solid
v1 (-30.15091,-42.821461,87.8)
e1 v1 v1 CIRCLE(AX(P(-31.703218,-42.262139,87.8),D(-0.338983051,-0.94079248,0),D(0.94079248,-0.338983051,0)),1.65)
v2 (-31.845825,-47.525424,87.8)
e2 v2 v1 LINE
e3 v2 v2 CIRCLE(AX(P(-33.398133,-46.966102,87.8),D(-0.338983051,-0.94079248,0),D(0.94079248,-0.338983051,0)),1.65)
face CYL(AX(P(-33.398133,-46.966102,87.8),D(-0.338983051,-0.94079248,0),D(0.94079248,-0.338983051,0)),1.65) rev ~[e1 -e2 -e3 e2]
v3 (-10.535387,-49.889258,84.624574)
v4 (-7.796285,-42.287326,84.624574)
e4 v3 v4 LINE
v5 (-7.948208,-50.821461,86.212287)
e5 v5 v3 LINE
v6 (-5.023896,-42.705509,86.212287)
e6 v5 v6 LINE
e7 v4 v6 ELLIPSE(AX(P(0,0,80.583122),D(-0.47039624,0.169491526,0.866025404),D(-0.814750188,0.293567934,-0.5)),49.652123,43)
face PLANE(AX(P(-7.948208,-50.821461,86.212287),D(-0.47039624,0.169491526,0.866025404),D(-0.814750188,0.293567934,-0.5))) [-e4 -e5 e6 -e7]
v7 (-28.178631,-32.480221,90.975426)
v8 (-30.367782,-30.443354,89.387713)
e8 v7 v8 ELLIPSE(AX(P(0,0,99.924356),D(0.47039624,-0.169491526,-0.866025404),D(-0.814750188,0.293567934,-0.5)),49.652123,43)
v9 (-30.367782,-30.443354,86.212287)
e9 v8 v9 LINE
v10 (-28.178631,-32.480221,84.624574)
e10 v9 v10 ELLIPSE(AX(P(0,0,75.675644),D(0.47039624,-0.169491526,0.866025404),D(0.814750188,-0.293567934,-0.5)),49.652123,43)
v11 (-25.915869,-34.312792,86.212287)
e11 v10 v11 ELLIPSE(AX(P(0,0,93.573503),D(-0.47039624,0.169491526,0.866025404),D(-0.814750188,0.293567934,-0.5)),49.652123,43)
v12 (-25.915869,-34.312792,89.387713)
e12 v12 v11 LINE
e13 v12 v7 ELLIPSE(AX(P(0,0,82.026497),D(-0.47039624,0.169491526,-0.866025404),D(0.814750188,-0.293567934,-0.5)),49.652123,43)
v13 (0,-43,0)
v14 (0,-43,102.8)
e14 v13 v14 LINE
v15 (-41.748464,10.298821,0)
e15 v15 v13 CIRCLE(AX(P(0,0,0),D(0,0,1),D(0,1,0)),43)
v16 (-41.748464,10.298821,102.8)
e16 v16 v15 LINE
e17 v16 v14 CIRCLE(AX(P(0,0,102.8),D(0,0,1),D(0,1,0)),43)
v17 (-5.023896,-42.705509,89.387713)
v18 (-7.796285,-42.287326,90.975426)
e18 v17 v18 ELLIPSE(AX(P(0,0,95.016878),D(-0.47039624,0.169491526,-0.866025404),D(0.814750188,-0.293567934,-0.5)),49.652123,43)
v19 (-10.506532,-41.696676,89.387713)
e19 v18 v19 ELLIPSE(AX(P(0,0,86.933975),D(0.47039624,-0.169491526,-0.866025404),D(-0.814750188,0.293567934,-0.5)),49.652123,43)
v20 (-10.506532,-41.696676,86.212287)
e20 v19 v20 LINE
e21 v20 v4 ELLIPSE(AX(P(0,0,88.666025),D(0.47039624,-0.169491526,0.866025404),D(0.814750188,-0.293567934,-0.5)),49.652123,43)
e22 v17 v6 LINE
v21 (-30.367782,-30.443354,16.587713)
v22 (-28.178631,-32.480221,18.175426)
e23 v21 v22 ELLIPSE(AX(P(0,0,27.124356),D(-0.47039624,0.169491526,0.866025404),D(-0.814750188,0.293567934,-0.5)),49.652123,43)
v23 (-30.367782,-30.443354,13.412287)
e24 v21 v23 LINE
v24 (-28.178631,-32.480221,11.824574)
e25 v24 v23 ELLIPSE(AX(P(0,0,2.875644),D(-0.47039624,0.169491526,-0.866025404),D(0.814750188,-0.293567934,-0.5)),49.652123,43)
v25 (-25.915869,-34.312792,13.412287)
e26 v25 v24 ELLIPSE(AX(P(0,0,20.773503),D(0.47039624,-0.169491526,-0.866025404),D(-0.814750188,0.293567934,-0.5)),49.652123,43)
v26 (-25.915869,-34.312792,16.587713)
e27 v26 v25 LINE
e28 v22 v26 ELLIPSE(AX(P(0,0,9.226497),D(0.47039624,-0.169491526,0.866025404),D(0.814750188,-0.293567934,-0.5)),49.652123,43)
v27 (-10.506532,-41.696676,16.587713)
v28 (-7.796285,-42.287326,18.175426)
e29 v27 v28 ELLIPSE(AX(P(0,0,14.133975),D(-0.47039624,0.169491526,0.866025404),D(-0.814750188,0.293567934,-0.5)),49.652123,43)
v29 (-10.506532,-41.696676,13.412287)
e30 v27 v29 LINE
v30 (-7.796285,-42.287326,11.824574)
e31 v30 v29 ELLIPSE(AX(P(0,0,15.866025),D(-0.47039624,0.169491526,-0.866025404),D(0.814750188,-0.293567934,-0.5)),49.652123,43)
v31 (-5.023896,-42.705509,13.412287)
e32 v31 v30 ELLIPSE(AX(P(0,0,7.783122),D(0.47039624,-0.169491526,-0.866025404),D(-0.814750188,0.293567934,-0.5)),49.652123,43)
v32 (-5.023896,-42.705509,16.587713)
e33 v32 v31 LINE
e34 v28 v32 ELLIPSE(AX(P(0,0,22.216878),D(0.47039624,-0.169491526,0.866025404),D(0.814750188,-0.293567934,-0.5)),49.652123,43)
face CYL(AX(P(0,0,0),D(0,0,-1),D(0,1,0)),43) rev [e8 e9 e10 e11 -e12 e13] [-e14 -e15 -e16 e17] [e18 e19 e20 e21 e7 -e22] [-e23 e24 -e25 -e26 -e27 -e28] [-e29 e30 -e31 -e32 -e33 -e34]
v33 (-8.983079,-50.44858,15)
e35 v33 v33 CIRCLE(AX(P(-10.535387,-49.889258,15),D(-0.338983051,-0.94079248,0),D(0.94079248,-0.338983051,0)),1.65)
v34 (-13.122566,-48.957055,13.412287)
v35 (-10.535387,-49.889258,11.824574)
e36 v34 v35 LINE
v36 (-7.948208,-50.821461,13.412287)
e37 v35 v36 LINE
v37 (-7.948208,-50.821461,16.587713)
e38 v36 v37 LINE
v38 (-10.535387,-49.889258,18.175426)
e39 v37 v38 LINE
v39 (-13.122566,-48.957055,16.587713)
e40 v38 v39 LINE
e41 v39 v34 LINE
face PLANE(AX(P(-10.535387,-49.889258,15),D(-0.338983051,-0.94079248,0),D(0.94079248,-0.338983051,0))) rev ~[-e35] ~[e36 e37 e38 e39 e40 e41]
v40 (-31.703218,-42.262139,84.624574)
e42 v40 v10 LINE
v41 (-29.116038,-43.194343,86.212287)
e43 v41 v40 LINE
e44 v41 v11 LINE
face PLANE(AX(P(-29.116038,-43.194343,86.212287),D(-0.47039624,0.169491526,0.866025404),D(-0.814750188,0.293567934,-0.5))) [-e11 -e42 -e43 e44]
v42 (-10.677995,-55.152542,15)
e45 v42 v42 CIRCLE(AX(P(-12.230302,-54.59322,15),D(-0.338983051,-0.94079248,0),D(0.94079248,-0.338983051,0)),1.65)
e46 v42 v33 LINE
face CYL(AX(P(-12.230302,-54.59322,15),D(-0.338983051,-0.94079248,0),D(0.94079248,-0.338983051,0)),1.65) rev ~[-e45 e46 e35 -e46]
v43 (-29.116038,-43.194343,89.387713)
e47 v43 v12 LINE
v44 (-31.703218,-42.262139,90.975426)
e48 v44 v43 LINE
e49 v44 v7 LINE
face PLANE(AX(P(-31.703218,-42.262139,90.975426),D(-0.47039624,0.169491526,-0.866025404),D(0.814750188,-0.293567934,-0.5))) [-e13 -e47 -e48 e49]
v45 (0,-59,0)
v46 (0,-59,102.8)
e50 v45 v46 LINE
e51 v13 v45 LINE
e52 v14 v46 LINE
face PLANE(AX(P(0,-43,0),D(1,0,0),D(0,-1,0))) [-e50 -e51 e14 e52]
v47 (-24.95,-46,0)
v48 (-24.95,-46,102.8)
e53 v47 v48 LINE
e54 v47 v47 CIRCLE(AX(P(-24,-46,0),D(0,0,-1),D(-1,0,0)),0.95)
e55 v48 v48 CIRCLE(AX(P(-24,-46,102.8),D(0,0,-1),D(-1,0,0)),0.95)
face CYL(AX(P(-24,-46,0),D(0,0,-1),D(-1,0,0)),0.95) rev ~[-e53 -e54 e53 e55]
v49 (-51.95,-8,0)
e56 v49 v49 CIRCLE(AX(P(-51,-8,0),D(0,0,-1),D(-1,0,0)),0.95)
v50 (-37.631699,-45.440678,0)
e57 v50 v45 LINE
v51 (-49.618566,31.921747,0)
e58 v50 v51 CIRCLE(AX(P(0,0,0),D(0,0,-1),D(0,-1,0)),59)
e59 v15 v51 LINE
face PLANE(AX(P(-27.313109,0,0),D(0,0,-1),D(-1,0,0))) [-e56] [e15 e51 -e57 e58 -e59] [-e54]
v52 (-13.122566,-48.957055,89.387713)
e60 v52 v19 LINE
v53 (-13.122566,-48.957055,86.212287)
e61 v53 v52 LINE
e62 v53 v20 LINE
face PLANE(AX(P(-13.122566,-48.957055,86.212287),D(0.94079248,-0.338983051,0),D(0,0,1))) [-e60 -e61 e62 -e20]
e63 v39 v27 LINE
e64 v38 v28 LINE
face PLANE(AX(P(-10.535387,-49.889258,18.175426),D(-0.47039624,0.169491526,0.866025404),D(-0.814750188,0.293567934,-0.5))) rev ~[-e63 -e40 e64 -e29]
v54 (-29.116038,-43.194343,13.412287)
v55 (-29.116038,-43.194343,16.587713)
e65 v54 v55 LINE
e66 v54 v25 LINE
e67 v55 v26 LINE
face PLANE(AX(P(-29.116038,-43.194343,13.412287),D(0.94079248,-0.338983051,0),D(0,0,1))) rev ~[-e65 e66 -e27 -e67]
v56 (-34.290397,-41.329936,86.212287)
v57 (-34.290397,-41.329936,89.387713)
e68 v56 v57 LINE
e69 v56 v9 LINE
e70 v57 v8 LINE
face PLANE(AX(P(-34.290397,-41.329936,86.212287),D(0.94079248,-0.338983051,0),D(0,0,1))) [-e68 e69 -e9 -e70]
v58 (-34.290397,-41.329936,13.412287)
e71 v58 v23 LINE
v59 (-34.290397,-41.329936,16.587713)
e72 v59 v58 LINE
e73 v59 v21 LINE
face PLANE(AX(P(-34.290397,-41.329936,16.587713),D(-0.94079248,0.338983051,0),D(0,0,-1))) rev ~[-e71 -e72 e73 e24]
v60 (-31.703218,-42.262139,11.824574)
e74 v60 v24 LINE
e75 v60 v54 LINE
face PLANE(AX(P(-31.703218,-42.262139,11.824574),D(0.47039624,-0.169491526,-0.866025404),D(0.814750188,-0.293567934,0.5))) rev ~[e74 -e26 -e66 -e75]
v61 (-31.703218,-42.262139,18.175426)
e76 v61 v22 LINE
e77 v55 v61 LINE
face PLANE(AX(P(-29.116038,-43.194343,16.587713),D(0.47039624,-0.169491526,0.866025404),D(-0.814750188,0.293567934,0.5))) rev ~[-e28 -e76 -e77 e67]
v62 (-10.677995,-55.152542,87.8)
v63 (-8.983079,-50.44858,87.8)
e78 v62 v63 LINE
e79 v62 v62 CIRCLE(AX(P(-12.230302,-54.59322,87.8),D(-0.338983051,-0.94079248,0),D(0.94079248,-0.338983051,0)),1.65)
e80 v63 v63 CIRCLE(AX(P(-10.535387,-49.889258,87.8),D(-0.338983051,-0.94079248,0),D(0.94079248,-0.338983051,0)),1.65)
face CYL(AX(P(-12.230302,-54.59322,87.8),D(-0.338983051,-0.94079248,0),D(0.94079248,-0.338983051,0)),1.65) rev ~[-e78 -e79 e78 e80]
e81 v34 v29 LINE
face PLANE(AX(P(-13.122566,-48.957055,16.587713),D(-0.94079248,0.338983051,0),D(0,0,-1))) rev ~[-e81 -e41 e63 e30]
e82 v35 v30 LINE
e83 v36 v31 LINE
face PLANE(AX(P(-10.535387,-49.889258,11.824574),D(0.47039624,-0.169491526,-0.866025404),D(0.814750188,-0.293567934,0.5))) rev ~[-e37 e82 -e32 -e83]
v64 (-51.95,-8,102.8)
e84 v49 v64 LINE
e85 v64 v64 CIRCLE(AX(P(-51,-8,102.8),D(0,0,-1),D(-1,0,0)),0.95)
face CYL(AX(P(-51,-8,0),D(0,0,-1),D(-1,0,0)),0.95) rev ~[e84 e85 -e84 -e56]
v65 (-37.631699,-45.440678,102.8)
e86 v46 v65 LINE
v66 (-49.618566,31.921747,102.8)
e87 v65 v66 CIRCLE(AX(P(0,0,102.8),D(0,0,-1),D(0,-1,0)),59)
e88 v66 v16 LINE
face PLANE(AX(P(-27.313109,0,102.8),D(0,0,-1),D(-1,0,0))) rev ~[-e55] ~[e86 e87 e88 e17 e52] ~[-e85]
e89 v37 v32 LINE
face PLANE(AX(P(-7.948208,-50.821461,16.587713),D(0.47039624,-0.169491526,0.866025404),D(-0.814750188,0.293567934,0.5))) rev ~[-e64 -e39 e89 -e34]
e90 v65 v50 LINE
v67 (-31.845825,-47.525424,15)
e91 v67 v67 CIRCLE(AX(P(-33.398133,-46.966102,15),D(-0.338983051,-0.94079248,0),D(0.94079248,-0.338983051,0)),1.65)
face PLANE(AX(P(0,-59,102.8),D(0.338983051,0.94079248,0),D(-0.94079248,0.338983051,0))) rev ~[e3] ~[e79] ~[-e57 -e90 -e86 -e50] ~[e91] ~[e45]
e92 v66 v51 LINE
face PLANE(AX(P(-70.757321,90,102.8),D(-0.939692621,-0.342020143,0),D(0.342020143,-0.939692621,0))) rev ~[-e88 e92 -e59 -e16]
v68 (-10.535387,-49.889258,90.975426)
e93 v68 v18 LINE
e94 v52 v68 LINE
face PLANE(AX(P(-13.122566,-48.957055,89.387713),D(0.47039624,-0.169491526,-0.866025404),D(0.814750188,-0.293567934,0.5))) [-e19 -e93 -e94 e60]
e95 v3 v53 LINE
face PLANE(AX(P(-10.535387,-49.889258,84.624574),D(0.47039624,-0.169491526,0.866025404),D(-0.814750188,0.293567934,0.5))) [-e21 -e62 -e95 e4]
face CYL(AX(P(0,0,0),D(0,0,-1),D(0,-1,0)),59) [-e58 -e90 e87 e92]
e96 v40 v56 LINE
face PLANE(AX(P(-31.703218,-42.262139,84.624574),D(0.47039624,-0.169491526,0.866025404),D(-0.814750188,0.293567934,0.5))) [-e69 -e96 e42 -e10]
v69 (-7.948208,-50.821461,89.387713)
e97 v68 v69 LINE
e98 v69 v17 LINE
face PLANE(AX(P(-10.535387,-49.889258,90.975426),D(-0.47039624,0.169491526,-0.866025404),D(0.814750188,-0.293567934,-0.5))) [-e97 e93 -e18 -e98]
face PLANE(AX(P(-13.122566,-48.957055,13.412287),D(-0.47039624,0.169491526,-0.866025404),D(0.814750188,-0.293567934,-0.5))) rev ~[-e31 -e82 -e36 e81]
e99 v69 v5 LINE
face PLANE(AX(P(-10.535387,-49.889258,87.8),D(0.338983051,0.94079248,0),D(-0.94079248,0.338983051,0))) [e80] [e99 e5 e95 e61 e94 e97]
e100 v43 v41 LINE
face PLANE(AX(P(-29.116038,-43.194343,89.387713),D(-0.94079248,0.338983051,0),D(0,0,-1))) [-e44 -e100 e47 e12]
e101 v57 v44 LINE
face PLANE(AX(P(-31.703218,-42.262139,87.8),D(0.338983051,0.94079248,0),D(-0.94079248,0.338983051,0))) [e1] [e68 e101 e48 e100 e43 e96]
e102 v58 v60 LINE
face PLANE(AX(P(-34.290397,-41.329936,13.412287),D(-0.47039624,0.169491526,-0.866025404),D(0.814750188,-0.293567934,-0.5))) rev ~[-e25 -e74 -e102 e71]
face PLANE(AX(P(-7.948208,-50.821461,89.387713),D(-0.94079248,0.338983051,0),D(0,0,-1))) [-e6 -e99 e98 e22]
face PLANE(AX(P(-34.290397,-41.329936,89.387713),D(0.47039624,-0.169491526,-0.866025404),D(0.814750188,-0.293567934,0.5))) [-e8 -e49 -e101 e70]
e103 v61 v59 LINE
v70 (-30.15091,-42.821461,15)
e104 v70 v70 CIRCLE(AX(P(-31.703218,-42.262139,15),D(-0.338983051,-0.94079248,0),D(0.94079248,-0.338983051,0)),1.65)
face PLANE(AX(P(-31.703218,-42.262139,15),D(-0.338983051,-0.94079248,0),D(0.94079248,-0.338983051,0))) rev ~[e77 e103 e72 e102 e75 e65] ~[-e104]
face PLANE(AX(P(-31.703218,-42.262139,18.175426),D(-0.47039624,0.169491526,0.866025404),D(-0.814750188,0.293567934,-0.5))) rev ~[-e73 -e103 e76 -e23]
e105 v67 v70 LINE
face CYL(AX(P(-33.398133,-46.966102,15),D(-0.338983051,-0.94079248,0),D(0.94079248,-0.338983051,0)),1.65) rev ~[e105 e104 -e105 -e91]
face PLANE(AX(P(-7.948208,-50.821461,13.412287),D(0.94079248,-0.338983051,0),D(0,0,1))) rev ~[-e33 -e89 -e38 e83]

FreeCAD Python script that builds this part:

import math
import FreeCAD as App
import Part
import Sketcher
Q = App.Units.Quantity


def add_polygon(sketch, points):
    """Adds a closed chain of lines whose ends are joined by coincident constraints."""
    first, n = sketch.GeometryCount, len(points)
    for a, b in zip(points, points[1:] + points[:1]):
        sketch.addGeometry(Part.LineSegment(App.Vector(*a, 0), App.Vector(*b, 0)), False)
    for i in range(n):
        sketch.addConstraint(Sketcher.Constraint("Coincident", first + i, 2, first + (i + 1) % n, 1))

doc = App.newDocument("Part")
body = doc.addObject("PartDesign::Body", "Body")

sketch1 = body.newObject("Sketcher::SketchObject", "Sketch")
sketch1.AttachmentSupport = (doc.getObject("XY_Plane"), [""])
sketch1.MapMode = "FlatFace"
sketch1.addGeometry([
    Part.LineSegment(App.Vector(0, 43, 0), App.Vector(0, 59, 0)),
    Part.ArcOfCircle(Part.Circle(App.Vector(0, 0, 0), App.Vector(0, 0, 1), 59), math.radians(90), math.radians(270)),
    Part.LineSegment(App.Vector(0, -59, 0), App.Vector(0, -43, 0)),
    Part.ArcOfCircle(Part.Circle(App.Vector(0, 0, 0), App.Vector(0, 0, 1), 43), math.radians(90), math.radians(270)),
], False)
sketch1.addConstraint([
    Sketcher.Constraint("Coincident", 0, 2, 1, 1),
    Sketcher.Constraint("Coincident", 1, 2, 2, 1),
    Sketcher.Constraint("Coincident", 2, 2, 3, 2),
    Sketcher.Constraint("Coincident", 3, 1, 0, 1),
    Sketcher.Constraint("Vertical", 0),
    Sketcher.Constraint("Vertical", 2),
    Sketcher.Constraint("Coincident", 1, 3, -1, 1),
    Sketcher.Constraint("Coincident", 3, 3, -1, 1),
    Sketcher.Constraint("PointOnObject", 0, 2, -2),
    Sketcher.Constraint("PointOnObject", 1, 2, -2),
    Sketcher.Constraint("Radius", 1, 59.0),
    Sketcher.Constraint("Radius", 3, 43.0),
])
pad1 = body.newObject("PartDesign::Pad", "Pad")
pad1.Profile = sketch1
pad1.Length = 102.8

sketch2 = body.newObject("Sketcher::SketchObject", "Sketch001")
sketch2.AttachmentSupport = (doc.getObject("XY_Plane"), [""])
sketch2.MapMode = "FlatFace"
sketch2.AttachmentOffset = App.Placement(App.Vector(0, 0, 102.8), App.Rotation())
add_polygon(sketch2, [(0, 0), (0, 90), (-71, 90), (-38, 0)])
sketch2.addConstraint([
    Sketcher.Constraint("Vertical", 0),
    Sketcher.Constraint("Horizontal", 1),
    Sketcher.Constraint("Horizontal", 3),
    Sketcher.Constraint("Coincident", 3, 2, -1, 1),
    Sketcher.Constraint("DistanceX", 3, 1, 3, 2, 38.0),
    Sketcher.Constraint("DistanceY", 0, 1, 0, 2, 90.0),
    Sketcher.Constraint("Angle", 2, Q("-70 deg")),
])
pocket1 = body.newObject("PartDesign::Pocket", "Pocket")
pocket1.Profile = sketch2
pocket1.Type = "ThroughAll"

sketch3 = body.newObject("Sketcher::SketchObject", "Sketch002")
sketch3.AttachmentSupport = (doc.getObject("XY_Plane"), [""])
sketch3.MapMode = "FlatFace"
sketch3.AttachmentOffset = App.Placement(App.Vector(0, 0, 102.8), App.Rotation())
add_polygon(sketch3, [(0, -59), (-38, -45), (-43, -59)])
sketch3.addConstraint([
    Sketcher.Constraint("Horizontal", 2),
    Sketcher.Constraint("PointOnObject", 2, 2, -2),
    Sketcher.Constraint("Perpendicular", 0, 1),
    Sketcher.Constraint("Distance", 0, 40.0),
    Sketcher.Constraint("DistanceY", 1, 2, -1, 1, 59.0),
    Sketcher.Constraint("DistanceX", 0, 2, -1, 1, 37.631699),
])
pocket2 = body.newObject("PartDesign::Pocket", "Pocket001")
pocket2.Profile = sketch3
pocket2.Type = "ThroughAll"

sketch4 = body.newObject("Sketcher::SketchObject", "Sketch003")
sketch4.Placement = App.Placement(App.Vector(-18.81585, -52.220339, 0), App.Rotation(App.Vector(0.94079248, -0.338983051, 0), App.Vector(0, 0, 0.999999999), App.Vector(-0.338983051, -0.94079248, 0), "ZXY"))
sketch4.addGeometry(Part.Circle(App.Vector(7, 15, 0), App.Vector(0, 0, 1), 1.6), False)
sketch4.addConstraint([
    Sketcher.Constraint("Diameter", 0, 3.3),
    Sketcher.Constraint("DistanceX", -1, 1, 0, 3, 7.0),
    Sketcher.Constraint("DistanceY", -1, 1, 0, 3, 15.0),
])
pocket3 = body.newObject("PartDesign::Pocket", "Pocket002")
pocket3.Profile = sketch4
pocket3.Type = "UpToFirst"

sketch5 = body.newObject("Sketcher::SketchObject", "Sketch004")
sketch5.Placement = App.Placement(App.Vector(-18.81585, -52.220339, 0), App.Rotation(App.Vector(0.94079248, -0.338983051, 0), App.Vector(0, 0, 0.999999999), App.Vector(-0.338983051, -0.94079248, 0), "ZXY"))
sketch5.addGeometry(Part.Circle(App.Vector(-15.5, 15, 0), App.Vector(0, 0, 1), 1.6), False)
sketch5.addConstraint([
    Sketcher.Constraint("Diameter", 0, 3.3),
    Sketcher.Constraint("DistanceY", -1, 1, 0, 3, 15.0),
    Sketcher.Constraint("DistanceX", 0, 3, -1, 1, 15.5),
])
pocket4 = body.newObject("PartDesign::Pocket", "Pocket003")
pocket4.Profile = sketch5
pocket4.Type = "UpToFirst"

sketch6 = body.newObject("Sketcher::SketchObject", "Sketch005")
sketch6.Placement = App.Placement(App.Vector(-18.81585, -52.220339, 0), App.Rotation(App.Vector(0.94079248, -0.338983051, 0), App.Vector(0, 0, 0.999999999), App.Vector(-0.338983051, -0.94079248, 0), "ZXY"))
sketch6.addGeometry(Part.Circle(App.Vector(-15.5, 87.8, 0), App.Vector(0, 0, 1), 1.6), False)
sketch6.addConstraint([
    Sketcher.Constraint("Diameter", 0, 3.3),
    Sketcher.Constraint("DistanceX", 0, 3, -1, 1, 15.5),
    Sketcher.Constraint("DistanceY", -1, 1, 0, 3, 87.8),
])
pocket5 = body.newObject("PartDesign::Pocket", "Pocket004")
pocket5.Profile = sketch6
pocket5.Type = "UpToFirst"

sketch7 = body.newObject("Sketcher::SketchObject", "Sketch006")
sketch7.Placement = App.Placement(App.Vector(-18.81585, -52.220339, 0), App.Rotation(App.Vector(0.94079248, -0.338983051, 0), App.Vector(0, 0, 0.999999999), App.Vector(-0.338983051, -0.94079248, 0), "ZXY"))
sketch7.addGeometry(Part.Circle(App.Vector(7, 87.8, 0), App.Vector(0, 0, 1), 1.6), False)
sketch7.addConstraint([
    Sketcher.Constraint("Diameter", 0, 3.3),
    Sketcher.Constraint("DistanceX", -1, 1, 0, 3, 7.0),
    Sketcher.Constraint("DistanceY", -1, 1, 0, 3, 87.8),
])
pocket6 = body.newObject("PartDesign::Pocket", "Pocket005")
pocket6.Profile = sketch7
pocket6.Type = "UpToFirst"

sketch8 = body.newObject("Sketcher::SketchObject", "Sketch007")
sketch8.Placement = App.Placement(App.Vector(-17.120934, -47.516377, 0), App.Rotation(App.Vector(0.94079248, -0.338983051, 0), App.Vector(0, 0, 0.999999999), App.Vector(-0.338983051, -0.94079248, 0), "ZXY"))
add_polygon(sketch8, [(7, 11.8), (9.7, 13.4), (9.7, 16.6), (7, 18.2), (4.2, 16.6), (4.2, 13.4)])
add_polygon(sketch8, [(-15.5, 11.8), (-12.7, 13.4), (-12.7, 16.6), (-15.5, 18.2), (-18.2, 16.6), (-18.2, 13.4)])
add_polygon(sketch8, [(-15.5, 91), (-18.2, 89.4), (-18.2, 86.2), (-15.5, 84.6), (-12.7, 86.2), (-12.7, 89.4)])
add_polygon(sketch8, [(7, 91), (4.2, 89.4), (4.2, 86.2), (7, 84.6), (9.7, 86.2), (9.7, 89.4)])
sketch8.addConstraint([
    Sketcher.Constraint("Vertical", 1),
    Sketcher.Constraint("Vertical", 4),
    Sketcher.Constraint("Vertical", 7),
    Sketcher.Constraint("Vertical", 10),
    Sketcher.Constraint("Vertical", 13),
    Sketcher.Constraint("Vertical", 16),
    Sketcher.Constraint("Vertical", 19),
    Sketcher.Constraint("Vertical", 22),
    Sketcher.Constraint("Parallel", 0, 3),
    Sketcher.Constraint("Parallel", 2, 5),
    Sketcher.Constraint("Parallel", 3, 6),
    Sketcher.Constraint("Parallel", 5, 8),
    Sketcher.Constraint("Parallel", 6, 9),
    Sketcher.Constraint("Parallel", 8, 11),
    Sketcher.Constraint("Parallel", 9, 12),
    Sketcher.Constraint("Parallel", 11, 14),
    Sketcher.Constraint("Parallel", 12, 15),
    Sketcher.Constraint("Parallel", 14, 17),
    Sketcher.Constraint("Parallel", 15, 18),
    Sketcher.Constraint("Parallel", 17, 20),
    Sketcher.Constraint("Parallel", 18, 21),
    Sketcher.Constraint("Parallel", 20, 23),
    Sketcher.Constraint("Horizontal", 1, 2, 3, 2),
    Sketcher.Constraint("Horizontal", 0, 2, 4, 2),
    Sketcher.Constraint("Horizontal", 4, 2, 6, 2),
    Sketcher.Constraint("Horizontal", 3, 2, 7, 2),
    Sketcher.Constraint("Horizontal", 2, 2, 8, 2),
    Sketcher.Constraint("Horizontal", 7, 2, 9, 2),
    Sketcher.Constraint("Horizontal", 6, 2, 10, 2),
    Sketcher.Constraint("Horizontal", 13, 2, 15, 2),
    Sketcher.Constraint("Horizontal", 12, 2, 16, 2),
    Sketcher.Constraint("Horizontal", 16, 2, 18, 2),
    Sketcher.Constraint("Horizontal", 15, 2, 19, 2),
    Sketcher.Constraint("Horizontal", 14, 2, 20, 2),
    Sketcher.Constraint("Horizontal", 19, 2, 21, 2),
    Sketcher.Constraint("Horizontal", 18, 2, 22, 2),
    Sketcher.Constraint("Vertical", 2, 2, 5, 2),
    Sketcher.Constraint("Vertical", 10, 2, 12, 2),
    Sketcher.Constraint("Vertical", 11, 2, 14, 2),
    Sketcher.Constraint("Vertical", 4, 2, 18, 2),
    Sketcher.Constraint("Equal", 10, 13),
    Sketcher.Constraint("Angle", 0, Q("30 deg")),
    Sketcher.Constraint("DistanceX", -1, 1, 2, 2, 7.0),
    Sketcher.Constraint("DistanceX", 6, 2, 4, 2, 17.0),
    Sketcher.Constraint("DistanceX", 8, 2, -1, 1, 15.5),
    Sketcher.Constraint("DistanceY", 9, 2, 12, 2, 72.8),
    Sketcher.Constraint("DistanceY", 1, 1, 1, 2, 3.175426),
    Sketcher.Constraint("DistanceY", -1, 1, 0, 2, 13.412287),
])
pocket7 = body.newObject("PartDesign::Pocket", "Pocket006")
pocket7.Profile = sketch8
pocket7.Type = "ThroughAll"

sketch9 = body.newObject("Sketcher::SketchObject", "Sketch008")
sketch9.AttachmentSupport = (doc.getObject("XY_Plane"), [""])
sketch9.MapMode = "FlatFace"
sketch9.addGeometry([
    Part.Circle(App.Vector(-24, -46, 0), App.Vector(0, 0, 1), 0.9),
    Part.Circle(App.Vector(-51, -8, 0), App.Vector(0, 0, 1), 0.9),
], False)
sketch9.addConstraint([
    Sketcher.Constraint("Equal", 0, 1),
    Sketcher.Constraint("Diameter", 0, 1.9),
    Sketcher.Constraint("DistanceX", 0, 3, -1, 1, 24.0),
    Sketcher.Constraint("DistanceY", 0, 3, -1, 1, 46.0),
    Sketcher.Constraint("DistanceX", 1, 3, -1, 1, 51.0),
    Sketcher.Constraint("DistanceY", 1, 3, -1, 1, 8.0),
])
pocket8 = body.newObject("PartDesign::Pocket", "Pocket007")
pocket8.Profile = sketch9
pocket8.Type = "ThroughAll"
pocket8.Reversed = True

doc.recompute()
